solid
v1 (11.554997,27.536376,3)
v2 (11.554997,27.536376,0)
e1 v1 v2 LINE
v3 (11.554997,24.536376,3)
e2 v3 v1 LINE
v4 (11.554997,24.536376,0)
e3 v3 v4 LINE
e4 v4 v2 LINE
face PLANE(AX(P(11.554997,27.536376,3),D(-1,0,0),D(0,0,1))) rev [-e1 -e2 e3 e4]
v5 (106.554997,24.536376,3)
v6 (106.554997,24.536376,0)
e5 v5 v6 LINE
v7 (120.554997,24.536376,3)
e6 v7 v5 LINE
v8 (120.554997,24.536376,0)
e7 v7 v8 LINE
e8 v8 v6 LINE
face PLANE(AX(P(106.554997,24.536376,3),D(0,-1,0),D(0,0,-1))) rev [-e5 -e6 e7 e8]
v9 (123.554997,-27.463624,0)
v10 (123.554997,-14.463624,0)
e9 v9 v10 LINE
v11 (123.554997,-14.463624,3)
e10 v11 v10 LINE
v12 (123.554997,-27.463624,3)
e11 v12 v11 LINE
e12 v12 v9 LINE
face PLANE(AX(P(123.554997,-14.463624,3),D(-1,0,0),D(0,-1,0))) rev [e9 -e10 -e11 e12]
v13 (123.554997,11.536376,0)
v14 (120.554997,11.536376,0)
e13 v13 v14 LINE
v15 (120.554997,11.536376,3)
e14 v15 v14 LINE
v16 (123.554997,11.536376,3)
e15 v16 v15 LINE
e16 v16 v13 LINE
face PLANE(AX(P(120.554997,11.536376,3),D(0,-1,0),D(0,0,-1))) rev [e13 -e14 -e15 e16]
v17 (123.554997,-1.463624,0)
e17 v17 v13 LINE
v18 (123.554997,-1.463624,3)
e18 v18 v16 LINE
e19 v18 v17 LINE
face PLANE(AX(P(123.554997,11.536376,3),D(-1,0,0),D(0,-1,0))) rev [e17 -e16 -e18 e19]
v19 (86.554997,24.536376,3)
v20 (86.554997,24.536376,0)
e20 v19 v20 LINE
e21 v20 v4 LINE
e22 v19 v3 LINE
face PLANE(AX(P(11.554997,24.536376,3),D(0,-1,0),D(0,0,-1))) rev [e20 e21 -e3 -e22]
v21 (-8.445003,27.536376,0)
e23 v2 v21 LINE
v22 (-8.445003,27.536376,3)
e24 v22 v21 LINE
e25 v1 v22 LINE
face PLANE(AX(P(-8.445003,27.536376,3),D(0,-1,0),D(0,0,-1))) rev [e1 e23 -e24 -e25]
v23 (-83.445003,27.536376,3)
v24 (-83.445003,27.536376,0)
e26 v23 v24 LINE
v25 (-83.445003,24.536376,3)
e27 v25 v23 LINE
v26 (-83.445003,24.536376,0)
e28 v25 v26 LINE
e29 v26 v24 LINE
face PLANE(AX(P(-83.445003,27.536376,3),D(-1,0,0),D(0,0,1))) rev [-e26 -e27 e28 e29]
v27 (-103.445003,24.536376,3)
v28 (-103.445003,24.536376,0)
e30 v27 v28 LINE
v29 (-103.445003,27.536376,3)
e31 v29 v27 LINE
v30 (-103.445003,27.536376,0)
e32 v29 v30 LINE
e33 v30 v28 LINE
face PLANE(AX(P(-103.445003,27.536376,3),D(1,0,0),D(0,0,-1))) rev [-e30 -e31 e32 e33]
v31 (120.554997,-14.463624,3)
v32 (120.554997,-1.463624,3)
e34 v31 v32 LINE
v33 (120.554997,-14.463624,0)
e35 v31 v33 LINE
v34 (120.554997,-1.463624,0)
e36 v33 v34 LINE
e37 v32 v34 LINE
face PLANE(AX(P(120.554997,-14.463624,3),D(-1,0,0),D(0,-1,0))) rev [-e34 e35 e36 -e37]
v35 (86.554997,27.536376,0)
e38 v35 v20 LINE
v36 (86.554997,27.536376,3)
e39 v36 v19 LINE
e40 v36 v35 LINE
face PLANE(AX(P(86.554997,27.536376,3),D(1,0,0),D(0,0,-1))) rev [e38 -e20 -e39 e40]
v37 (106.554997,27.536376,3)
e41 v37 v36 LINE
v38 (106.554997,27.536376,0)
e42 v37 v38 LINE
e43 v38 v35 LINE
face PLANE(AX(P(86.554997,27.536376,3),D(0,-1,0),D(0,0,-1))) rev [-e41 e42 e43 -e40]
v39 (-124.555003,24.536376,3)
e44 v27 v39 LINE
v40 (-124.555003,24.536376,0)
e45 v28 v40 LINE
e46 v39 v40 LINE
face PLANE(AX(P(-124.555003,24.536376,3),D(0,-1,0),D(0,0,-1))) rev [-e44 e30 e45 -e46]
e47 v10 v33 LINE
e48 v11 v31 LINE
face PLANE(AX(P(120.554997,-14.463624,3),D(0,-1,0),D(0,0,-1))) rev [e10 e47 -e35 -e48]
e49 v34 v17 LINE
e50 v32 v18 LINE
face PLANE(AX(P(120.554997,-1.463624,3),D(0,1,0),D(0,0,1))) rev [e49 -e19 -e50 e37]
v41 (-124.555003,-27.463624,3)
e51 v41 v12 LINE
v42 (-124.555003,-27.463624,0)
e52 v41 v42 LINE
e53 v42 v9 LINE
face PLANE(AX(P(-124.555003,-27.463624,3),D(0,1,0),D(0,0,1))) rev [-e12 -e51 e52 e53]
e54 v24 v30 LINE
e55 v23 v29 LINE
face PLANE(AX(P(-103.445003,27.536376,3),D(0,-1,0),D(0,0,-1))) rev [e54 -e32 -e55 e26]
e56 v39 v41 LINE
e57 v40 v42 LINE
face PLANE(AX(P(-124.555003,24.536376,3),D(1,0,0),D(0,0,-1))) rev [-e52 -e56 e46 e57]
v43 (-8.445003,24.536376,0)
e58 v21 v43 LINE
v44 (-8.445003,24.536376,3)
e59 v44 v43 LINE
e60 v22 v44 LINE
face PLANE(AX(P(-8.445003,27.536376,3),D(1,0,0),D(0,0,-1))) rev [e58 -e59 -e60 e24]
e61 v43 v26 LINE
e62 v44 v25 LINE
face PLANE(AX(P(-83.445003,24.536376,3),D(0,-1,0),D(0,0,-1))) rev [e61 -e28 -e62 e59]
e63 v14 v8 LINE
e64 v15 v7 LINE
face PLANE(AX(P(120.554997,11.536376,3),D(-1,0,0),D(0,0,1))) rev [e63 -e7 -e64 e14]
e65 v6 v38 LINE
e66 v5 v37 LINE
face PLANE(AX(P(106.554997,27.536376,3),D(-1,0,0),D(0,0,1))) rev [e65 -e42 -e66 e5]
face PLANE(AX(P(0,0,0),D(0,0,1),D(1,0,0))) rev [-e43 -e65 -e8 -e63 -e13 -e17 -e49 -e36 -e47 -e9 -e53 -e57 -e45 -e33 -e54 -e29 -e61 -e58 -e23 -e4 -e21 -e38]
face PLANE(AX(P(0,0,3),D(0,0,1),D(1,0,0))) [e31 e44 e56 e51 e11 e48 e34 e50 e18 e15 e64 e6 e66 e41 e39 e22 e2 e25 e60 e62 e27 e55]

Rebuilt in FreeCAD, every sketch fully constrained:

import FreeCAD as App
import Part
import Sketcher

V = App.Vector
Q = App.Units.Quantity

doc = App.newDocument("Part")
body = doc.addObject("PartDesign::Body", "Body")

sketch1 = body.newObject("Sketcher::SketchObject", "Sketch")
sketch1.AttachmentSupport = (doc.getObject("XY_Plane"), [""])
sketch1.MapMode = "FlatFace"
sketch1.addGeometry(Part.LineSegment(V(-103.445003, 24.536376, 0), V(-124.555003, 24.536376, 0)), False)
sketch1.addGeometry(Part.LineSegment(V(-124.555003, 24.536376, 0), V(-124.555003, -27.463624, 0)), False)
sketch1.addGeometry(Part.LineSegment(V(-124.555003, -27.463624, 0), V(123.554997, -27.463624, 0)), False)
sketch1.addGeometry(Part.LineSegment(V(123.554997, -27.463624, 0), V(123.554997, -14.463624, 0)), False)
sketch1.addGeometry(Part.LineSegment(V(123.554997, -14.463624, 0), V(120.554997, -14.463624, 0)), False)
sketch1.addGeometry(Part.LineSegment(V(120.554997, -14.463624, 0), V(120.554997, -1.463624, 0)), False)
sketch1.addGeometry(Part.LineSegment(V(120.554997, -1.463624, 0), V(123.554997, -1.463624, 0)), False)
sketch1.addGeometry(Part.LineSegment(V(123.554997, -1.463624, 0), V(123.554997, 11.536376, 0)), False)
sketch1.addGeometry(Part.LineSegment(V(123.554997, 11.536376, 0), V(120.554997, 11.536376, 0)), False)
sketch1.addGeometry(Part.LineSegment(V(120.554997, 11.536376, 0), V(120.554997, 24.536376, 0)), False)
sketch1.addGeometry(Part.LineSegment(V(120.554997, 24.536376, 0), V(106.554997, 24.536376, 0)), False)
sketch1.addGeometry(Part.LineSegment(V(106.554997, 24.536376, 0), V(106.554997, 27.536376, 0)), False)
sketch1.addGeometry(Part.LineSegment(V(106.554997, 27.536376, 0), V(86.554997, 27.536376, 0)), False)
sketch1.addGeometry(Part.LineSegment(V(86.554997, 27.536376, 0), V(86.554997, 24.536376, 0)), False)
sketch1.addGeometry(Part.LineSegment(V(86.554997, 24.536376, 0), V(11.554997, 24.536376, 0)), False)
sketch1.addGeometry(Part.LineSegment(V(11.554997, 24.536376, 0), V(11.554997, 27.536376, 0)), False)
sketch1.addGeometry(Part.LineSegment(V(11.554997, 27.536376, 0), V(-8.445003, 27.536376, 0)), False)
sketch1.addGeometry(Part.LineSegment(V(-8.445003, 27.536376, 0), V(-8.445003, 24.536376, 0)), False)
sketch1.addGeometry(Part.LineSegment(V(-8.445003, 24.536376, 0), V(-83.445003, 24.536376, 0)), False)
sketch1.addGeometry(Part.LineSegment(V(-83.445003, 24.536376, 0), V(-83.445003, 27.536376, 0)), False)
sketch1.addGeometry(Part.LineSegment(V(-83.445003, 27.536376, 0), V(-103.445003, 27.536376, 0)), False)
sketch1.addGeometry(Part.LineSegment(V(-103.445003, 27.536376, 0), V(-103.445003, 24.536376, 0)), False)
sketch1.addConstraint(Sketcher.Constraint("Coincident", 0, 2, 1, 1))
sketch1.addConstraint(Sketcher.Constraint("Coincident", 1, 2, 2, 1))
sketch1.addConstraint(Sketcher.Constraint("Coincident", 2, 2, 3, 1))
sketch1.addConstraint(Sketcher.Constraint("Coincident", 3, 2, 4, 1))
sketch1.addConstraint(Sketcher.Constraint("Coincident", 4, 2, 5, 1))
sketch1.addConstraint(Sketcher.Constraint("Coincident", 5, 2, 6, 1))
sketch1.addConstraint(Sketcher.Constraint("Coincident", 6, 2, 7, 1))
sketch1.addConstraint(Sketcher.Constraint("Coincident", 7, 2, 8, 1))
sketch1.addConstraint(Sketcher.Constraint("Coincident", 8, 2, 9, 1))
sketch1.addConstraint(Sketcher.Constraint("Coincident", 9, 2, 10, 1))
sketch1.addConstraint(Sketcher.Constraint("Coincident", 10, 2, 11, 1))
sketch1.addConstraint(Sketcher.Constraint("Coincident", 11, 2, 12, 1))
sketch1.addConstraint(Sketcher.Constraint("Coincident", 12, 2, 13, 1))
sketch1.addConstraint(Sketcher.Constraint("Coincident", 13, 2, 14, 1))
sketch1.addConstraint(Sketcher.Constraint("Coincident", 14, 2, 15, 1))
sketch1.addConstraint(Sketcher.Constraint("Coincident", 15, 2, 16, 1))
sketch1.addConstraint(Sketcher.Constraint("Coincident", 16, 2, 17, 1))
sketch1.addConstraint(Sketcher.Constraint("Coincident", 17, 2, 18, 1))
sketch1.addConstraint(Sketcher.Constraint("Coincident", 18, 2, 19, 1))
sketch1.addConstraint(Sketcher.Constraint("Coincident", 19, 2, 20, 1))
sketch1.addConstraint(Sketcher.Constraint("Coincident", 20, 2, 21, 1))
sketch1.addConstraint(Sketcher.Constraint("Coincident", 21, 2, 0, 1))
sketch1.addConstraint(Sketcher.Constraint("Horizontal", 0))
sketch1.addConstraint(Sketcher.Constraint("Vertical", 1))
sketch1.addConstraint(Sketcher.Constraint("Horizontal", 2))
sketch1.addConstraint(Sketcher.Constraint("Vertical", 3))
sketch1.addConstraint(Sketcher.Constraint("Horizontal", 4))
sketch1.addConstraint(Sketcher.Constraint("Vertical", 5))
sketch1.addConstraint(Sketcher.Constraint("Horizontal", 6))
sketch1.addConstraint(Sketcher.Constraint("Vertical", 7))
sketch1.addConstraint(Sketcher.Constraint("Horizontal", 8))
sketch1.addConstraint(Sketcher.Constraint("Vertical", 9))
sketch1.addConstraint(Sketcher.Constraint("Horizontal", 10))
sketch1.addConstraint(Sketcher.Constraint("Vertical", 11))
sketch1.addConstraint(Sketcher.Constraint("Horizontal", 12))
sketch1.addConstraint(Sketcher.Constraint("Vertical", 13))
sketch1.addConstraint(Sketcher.Constraint("Horizontal", 14))
sketch1.addConstraint(Sketcher.Constraint("Vertical", 15))
sketch1.addConstraint(Sketcher.Constraint("Horizontal", 16))
sketch1.addConstraint(Sketcher.Constraint("Vertical", 17))
sketch1.addConstraint(Sketcher.Constraint("Horizontal", 18))
sketch1.addConstraint(Sketcher.Constraint("Vertical", 19))
sketch1.addConstraint(Sketcher.Constraint("Horizontal", 20))
sketch1.addConstraint(Sketcher.Constraint("Vertical", 21))
sketch1.addConstraint(Sketcher.Constraint("Horizontal", 0, 2, 9, 2))
sketch1.addConstraint(Sketcher.Constraint("Horizontal", 10, 2, 13, 2))
sketch1.addConstraint(Sketcher.Constraint("Horizontal", 12, 2, 15, 2))
sketch1.addConstraint(Sketcher.Constraint("Horizontal", 14, 2, 17, 2))
sketch1.addConstraint(Sketcher.Constraint("Horizontal", 16, 2, 19, 2))
sketch1.addConstraint(Sketcher.Constraint("Vertical", 3, 2, 6, 2))
sketch1.addConstraint(Sketcher.Constraint("Vertical", 5, 2, 8, 2))
sketch1.addConstraint(Sketcher.Constraint("Equal", 12, 16))
sketch1.addConstraint(Sketcher.Constraint("Equal", 14, 18))
sketch1.addConstraint(Sketcher.Constraint("Equal", 16, 20))
sketch1.addConstraint(Sketcher.Constraint("Equal", 3, 5))
sketch1.addConstraint(Sketcher.Constraint("Equal", 5, 7))
sketch1.addConstraint(Sketcher.Constraint("Equal", 7, 9))
sketch1.addConstraint(Sketcher.Constraint("Equal", 8, 11))
sketch1.addConstraint(Sketcher.Constraint("DistanceX", 4, 2, 4, 1, Q("3 mm")))
sketch1.addConstraint(Sketcher.Constraint("DistanceX", 10, 2, 10, 1, Q("14 mm")))
sketch1.addConstraint(Sketcher.Constraint("DistanceX", 12, 2, 12, 1, Q("20 mm")))
sketch1.addConstraint(Sketcher.Constraint("DistanceX", 14, 2, 14, 1, Q("75 mm")))
sketch1.addConstraint(Sketcher.Constraint("DistanceY", 1, 2, 1, 1, Q("52 mm")))
sketch1.addConstraint(Sketcher.Constraint("DistanceX", 0, 2, 0, 1, Q("21.11 mm")))
sketch1.addConstraint(Sketcher.Constraint("DistanceX", 0, 2, -1, 1, Q("124.555003 mm")))
sketch1.addConstraint(Sketcher.Constraint("DistanceY", -1, 1, 0, 2, Q("24.536376 mm")))
pad1 = body.newObject("PartDesign::Pad", "Pad")
pad1.Profile = sketch1
pad1.Length = 3

doc.recompute()
